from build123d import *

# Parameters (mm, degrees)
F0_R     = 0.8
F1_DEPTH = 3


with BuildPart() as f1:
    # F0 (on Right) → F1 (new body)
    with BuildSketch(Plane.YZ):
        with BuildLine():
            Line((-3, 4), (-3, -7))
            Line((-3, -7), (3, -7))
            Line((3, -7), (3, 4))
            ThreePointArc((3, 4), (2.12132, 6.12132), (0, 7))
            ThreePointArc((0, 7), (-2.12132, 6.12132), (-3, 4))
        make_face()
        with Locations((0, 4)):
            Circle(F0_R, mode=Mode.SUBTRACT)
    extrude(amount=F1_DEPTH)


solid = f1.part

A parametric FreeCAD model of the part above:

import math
import FreeCAD as App
import Part
import Sketcher

doc = App.newDocument("Part")
body = doc.addObject("PartDesign::Body", "Body")

# Sketch on YZ plane
sketch1 = doc.addObject("Sketcher::SketchObject", "Sketch")
body.addObject(sketch1)
sketch1.AttachmentSupport = (doc.YZ_Plane, [""])
sketch1.MapMode = "FlatFace"
sketch1.addGeometry(Part.LineSegment(App.Vector(-3, 4, 0), App.Vector(-3, -7, 0)), False)
sketch1.addGeometry(Part.LineSegment(App.Vector(-3, -7, 0), App.Vector(3, -7, 0)), False)
sketch1.addGeometry(Part.LineSegment(App.Vector(3, -7, 0), App.Vector(3, 4, 0)), False)
sketch1.addGeometry(Part.ArcOfCircle(Part.Circle(App.Vector(-0.000001, 3.999999, 0), App.Vector(0, 0, 1), 3.000001), math.radians(0.000022), math.radians(89.999978)), False)
sketch1.addGeometry(Part.ArcOfCircle(Part.Circle(App.Vector(0.000001, 3.999999, 0), App.Vector(0, 0, 1), 3.000001), math.radians(90.000022), math.radians(179.999978)), False)
sketch1.addGeometry(Part.Circle(App.Vector(0, 4, 0), App.Vector(0, 0, 1), 0.8), False)
sketch1.addConstraint(Sketcher.Constraint("Coincident", 0, 2, 1, 1))
sketch1.addConstraint(Sketcher.Constraint("Coincident", 1, 2, 2, 1))
sketch1.addConstraint(Sketcher.Constraint("Tangent", 2, 2, 3, 1))
sketch1.addConstraint(Sketcher.Constraint("Tangent", 3, 2, 4, 1))
sketch1.addConstraint(Sketcher.Constraint("Tangent", 4, 2, 0, 1))
sketch1.addConstraint(Sketcher.Constraint("Vertical", 0))
sketch1.addConstraint(Sketcher.Constraint("Horizontal", 1))
sketch1.addConstraint(Sketcher.Constraint("Vertical", 2))
sketch1.addConstraint(Sketcher.Constraint("Coincident", 5, 3, 3, 3))
sketch1.addConstraint(Sketcher.Constraint("Equal", 3, 4))
sketch1.addConstraint(Sketcher.Constraint("PointOnObject", 3, 3, -2))
sketch1.addConstraint(Sketcher.Constraint("PointOnObject", 3, 2, -2))
sketch1.addConstraint(Sketcher.Constraint("Radius", 3, 3.000001))
sketch1.addConstraint(Sketcher.Constraint("Diameter", 5, 1.6))
sketch1.addConstraint(Sketcher.Constraint("DistanceY", 0, 2, 0, 1, 11.0))
sketch1.addConstraint(Sketcher.Constraint("DistanceY", -1, 1, 3, 3, 3.999999))
pad1 = doc.addObject("PartDesign::Pad", "Pad")
body.addObject(pad1)
pad1.Profile = sketch1
pad1.Length = 3

doc.recompute()
